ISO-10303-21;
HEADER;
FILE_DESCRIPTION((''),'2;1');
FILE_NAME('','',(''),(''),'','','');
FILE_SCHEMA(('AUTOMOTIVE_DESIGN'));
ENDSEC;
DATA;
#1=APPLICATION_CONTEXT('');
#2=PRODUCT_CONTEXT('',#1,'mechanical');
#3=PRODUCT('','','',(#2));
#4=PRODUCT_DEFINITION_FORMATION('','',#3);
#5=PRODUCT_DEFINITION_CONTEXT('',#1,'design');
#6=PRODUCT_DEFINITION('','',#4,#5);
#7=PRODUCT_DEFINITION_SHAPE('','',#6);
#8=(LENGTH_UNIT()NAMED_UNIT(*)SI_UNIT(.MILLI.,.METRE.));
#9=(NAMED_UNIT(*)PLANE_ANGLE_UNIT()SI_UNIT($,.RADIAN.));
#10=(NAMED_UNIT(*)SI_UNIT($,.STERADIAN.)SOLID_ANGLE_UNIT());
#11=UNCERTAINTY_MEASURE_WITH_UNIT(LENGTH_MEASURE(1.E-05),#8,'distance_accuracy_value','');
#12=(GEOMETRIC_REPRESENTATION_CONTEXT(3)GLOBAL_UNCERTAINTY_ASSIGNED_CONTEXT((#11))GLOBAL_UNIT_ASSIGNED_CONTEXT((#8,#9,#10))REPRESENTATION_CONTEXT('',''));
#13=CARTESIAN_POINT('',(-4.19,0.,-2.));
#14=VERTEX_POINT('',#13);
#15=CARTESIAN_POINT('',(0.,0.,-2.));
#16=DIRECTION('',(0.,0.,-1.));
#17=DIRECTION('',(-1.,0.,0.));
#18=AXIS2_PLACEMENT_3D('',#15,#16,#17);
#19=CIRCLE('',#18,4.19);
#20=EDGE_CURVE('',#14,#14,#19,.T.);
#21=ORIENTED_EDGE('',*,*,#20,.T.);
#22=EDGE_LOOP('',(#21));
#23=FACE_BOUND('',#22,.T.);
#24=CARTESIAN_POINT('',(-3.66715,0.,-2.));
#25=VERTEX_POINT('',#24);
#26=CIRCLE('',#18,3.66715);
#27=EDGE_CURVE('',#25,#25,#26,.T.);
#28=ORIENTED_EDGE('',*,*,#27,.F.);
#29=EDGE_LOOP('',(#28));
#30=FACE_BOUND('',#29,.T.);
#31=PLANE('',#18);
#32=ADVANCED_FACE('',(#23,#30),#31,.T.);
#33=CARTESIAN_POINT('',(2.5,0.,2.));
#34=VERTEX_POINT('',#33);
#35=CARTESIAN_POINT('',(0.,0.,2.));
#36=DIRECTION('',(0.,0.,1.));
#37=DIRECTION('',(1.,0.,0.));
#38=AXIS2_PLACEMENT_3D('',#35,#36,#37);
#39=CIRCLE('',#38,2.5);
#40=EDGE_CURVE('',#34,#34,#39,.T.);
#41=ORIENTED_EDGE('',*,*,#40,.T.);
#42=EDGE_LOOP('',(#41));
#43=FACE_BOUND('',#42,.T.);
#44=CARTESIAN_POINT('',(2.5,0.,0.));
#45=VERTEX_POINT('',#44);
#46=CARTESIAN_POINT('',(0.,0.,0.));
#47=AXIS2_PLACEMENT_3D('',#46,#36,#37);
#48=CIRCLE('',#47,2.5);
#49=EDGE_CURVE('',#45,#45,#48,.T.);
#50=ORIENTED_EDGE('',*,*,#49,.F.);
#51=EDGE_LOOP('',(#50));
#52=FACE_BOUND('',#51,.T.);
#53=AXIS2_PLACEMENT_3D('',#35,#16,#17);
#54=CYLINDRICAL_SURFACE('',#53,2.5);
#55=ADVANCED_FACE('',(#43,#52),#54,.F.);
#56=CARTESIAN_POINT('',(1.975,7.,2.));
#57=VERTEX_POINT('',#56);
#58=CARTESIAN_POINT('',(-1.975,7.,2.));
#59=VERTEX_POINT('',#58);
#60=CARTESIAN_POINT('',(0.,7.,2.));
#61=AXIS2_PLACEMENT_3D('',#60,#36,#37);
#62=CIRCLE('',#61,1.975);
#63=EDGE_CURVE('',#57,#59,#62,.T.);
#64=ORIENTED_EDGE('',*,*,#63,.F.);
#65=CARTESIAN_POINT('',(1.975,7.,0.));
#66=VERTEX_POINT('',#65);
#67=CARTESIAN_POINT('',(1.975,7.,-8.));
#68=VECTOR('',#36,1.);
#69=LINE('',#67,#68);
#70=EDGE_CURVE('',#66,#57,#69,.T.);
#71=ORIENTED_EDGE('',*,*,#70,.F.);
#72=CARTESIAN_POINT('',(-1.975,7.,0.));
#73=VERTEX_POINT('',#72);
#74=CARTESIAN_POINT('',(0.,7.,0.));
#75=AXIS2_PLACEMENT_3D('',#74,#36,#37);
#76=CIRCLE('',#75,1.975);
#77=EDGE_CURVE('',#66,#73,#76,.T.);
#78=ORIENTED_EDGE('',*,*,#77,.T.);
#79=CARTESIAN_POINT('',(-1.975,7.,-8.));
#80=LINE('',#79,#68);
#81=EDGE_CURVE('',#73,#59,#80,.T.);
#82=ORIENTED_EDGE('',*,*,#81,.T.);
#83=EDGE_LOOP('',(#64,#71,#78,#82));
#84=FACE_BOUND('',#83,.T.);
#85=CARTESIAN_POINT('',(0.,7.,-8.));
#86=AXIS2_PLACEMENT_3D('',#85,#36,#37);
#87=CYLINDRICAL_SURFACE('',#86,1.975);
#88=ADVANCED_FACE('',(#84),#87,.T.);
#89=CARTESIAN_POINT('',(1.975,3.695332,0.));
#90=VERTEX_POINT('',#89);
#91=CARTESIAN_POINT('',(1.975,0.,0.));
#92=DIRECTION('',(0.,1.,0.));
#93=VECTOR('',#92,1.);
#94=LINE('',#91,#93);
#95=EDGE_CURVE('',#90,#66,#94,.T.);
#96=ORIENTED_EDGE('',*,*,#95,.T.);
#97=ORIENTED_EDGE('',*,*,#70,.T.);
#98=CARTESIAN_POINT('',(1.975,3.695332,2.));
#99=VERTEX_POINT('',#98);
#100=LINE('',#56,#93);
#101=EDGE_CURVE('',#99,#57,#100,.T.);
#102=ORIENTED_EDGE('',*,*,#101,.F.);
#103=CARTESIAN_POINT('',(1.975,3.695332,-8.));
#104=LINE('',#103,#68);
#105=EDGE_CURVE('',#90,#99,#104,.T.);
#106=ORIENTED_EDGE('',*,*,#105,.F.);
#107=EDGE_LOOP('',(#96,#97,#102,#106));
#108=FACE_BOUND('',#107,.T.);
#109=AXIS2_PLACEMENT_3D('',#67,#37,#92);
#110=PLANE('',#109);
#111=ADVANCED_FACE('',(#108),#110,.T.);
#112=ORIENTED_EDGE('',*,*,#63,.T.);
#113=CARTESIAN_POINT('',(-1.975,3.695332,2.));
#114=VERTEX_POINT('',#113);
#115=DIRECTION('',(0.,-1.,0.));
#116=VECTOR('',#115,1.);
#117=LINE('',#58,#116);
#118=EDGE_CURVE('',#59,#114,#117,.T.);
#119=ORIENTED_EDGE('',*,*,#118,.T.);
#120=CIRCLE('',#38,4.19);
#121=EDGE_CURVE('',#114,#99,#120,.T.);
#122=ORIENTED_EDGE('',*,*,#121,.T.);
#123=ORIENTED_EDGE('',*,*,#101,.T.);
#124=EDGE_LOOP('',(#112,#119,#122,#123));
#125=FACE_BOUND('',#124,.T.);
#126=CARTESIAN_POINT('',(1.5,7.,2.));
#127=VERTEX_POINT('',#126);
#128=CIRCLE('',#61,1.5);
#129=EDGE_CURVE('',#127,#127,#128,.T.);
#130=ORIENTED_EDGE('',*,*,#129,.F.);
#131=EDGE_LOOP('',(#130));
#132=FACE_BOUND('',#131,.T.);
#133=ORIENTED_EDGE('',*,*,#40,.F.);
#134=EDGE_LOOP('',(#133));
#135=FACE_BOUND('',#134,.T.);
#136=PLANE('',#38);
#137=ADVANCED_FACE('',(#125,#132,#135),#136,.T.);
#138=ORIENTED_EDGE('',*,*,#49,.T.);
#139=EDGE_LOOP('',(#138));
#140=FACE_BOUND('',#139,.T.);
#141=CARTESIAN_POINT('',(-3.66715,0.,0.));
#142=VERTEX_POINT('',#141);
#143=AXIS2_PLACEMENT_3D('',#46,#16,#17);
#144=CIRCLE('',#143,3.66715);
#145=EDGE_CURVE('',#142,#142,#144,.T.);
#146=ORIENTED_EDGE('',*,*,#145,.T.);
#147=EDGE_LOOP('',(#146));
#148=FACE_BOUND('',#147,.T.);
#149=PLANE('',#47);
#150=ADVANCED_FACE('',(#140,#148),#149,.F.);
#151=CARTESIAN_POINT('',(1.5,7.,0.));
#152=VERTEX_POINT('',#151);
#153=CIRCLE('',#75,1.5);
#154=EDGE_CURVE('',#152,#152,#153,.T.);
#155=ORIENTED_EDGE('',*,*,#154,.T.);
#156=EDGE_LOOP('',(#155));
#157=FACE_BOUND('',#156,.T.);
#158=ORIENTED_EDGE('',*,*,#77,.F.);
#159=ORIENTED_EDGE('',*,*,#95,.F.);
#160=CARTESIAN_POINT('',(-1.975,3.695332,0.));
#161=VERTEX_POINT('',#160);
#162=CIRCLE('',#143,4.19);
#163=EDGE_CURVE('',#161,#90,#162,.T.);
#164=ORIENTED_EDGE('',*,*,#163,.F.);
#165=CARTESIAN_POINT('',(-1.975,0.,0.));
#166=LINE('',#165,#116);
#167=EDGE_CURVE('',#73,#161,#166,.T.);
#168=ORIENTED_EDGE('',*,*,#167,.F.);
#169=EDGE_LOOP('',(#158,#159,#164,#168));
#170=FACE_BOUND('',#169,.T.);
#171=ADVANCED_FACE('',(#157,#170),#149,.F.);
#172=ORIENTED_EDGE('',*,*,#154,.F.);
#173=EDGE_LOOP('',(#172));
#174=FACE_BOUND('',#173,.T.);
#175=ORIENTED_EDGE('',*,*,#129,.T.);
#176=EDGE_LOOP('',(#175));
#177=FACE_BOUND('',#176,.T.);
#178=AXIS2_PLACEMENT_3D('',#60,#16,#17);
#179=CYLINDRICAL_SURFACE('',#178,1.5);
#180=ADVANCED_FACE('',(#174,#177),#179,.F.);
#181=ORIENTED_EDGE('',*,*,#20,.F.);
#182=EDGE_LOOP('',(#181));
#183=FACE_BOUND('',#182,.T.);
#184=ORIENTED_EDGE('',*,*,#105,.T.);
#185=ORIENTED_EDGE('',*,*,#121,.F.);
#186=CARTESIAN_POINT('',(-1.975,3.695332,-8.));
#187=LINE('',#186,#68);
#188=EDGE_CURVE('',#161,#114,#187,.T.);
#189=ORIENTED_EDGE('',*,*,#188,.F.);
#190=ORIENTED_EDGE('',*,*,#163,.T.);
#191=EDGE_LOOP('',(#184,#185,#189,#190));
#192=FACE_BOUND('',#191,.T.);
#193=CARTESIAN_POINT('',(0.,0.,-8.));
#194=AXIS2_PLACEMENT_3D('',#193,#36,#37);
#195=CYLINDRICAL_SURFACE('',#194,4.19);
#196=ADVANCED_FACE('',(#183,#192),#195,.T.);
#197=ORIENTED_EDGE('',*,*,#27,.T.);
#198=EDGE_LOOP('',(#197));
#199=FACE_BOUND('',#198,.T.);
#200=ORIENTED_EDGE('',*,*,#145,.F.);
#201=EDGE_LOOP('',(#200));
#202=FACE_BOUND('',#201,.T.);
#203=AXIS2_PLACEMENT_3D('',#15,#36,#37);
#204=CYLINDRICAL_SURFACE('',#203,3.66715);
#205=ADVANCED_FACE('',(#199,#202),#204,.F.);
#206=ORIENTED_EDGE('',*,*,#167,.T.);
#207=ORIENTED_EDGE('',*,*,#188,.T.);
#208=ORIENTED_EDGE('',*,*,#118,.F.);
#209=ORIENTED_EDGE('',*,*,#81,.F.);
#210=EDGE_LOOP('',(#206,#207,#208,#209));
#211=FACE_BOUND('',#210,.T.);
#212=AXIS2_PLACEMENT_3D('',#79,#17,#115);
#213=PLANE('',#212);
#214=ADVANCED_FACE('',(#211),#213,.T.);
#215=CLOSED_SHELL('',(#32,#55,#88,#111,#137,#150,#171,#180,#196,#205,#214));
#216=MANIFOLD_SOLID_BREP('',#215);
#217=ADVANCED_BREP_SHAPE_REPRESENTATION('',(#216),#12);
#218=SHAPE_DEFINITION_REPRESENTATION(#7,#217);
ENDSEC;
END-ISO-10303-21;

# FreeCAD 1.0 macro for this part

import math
import FreeCAD as App
import Part
import Sketcher
from FreeCAD import Vector
Q = App.Units.Quantity

doc = App.newDocument("Part")
body = doc.addObject("PartDesign::Body", "Body")

sketch1 = body.newObject("Sketcher::SketchObject", "Sketch")
sketch1.AttachmentSupport = (doc.getObject("XY_Plane"), [""])
sketch1.MapMode = "FlatFace"
sketch1.addGeometry([
    Part.Circle(Vector(0, 0, 0), Vector(0, 0, 1), 10),
    Part.Circle(Vector(0, 0, 0), Vector(0, 0, 1), 2.5),
    Part.Circle(Vector(0, 7, 0), Vector(0, 0, 1), 1.5),
], False)
sketch1.addConstraint([
    Sketcher.Constraint("Coincident", 0, 3, -1, 1),
    Sketcher.Constraint("Coincident", 1, 3, -1, 1),
    Sketcher.Constraint("PointOnObject", 2, 3, -2),
    Sketcher.Constraint("Diameter", 0, Q("20 mm")),
    Sketcher.Constraint("Diameter", 1, Q("5 mm")),
    Sketcher.Constraint("Diameter", 2, Q("3 mm")),
    Sketcher.Constraint("DistanceY", -1, 1, 2, 3, Q("7 mm")),
])
pad1 = body.newObject("PartDesign::Pad", "Pad")
pad1.Profile = sketch1
pad1.Length = 2

sketch2 = body.newObject("Sketcher::SketchObject", "Sketch001")
sketch2.AttachmentSupport = (doc.getObject("XY_Plane"), [""])
sketch2.MapMode = "FlatFace"
sketch2.AttachmentOffset = App.Placement(Vector(0, 0, -8), App.Rotation())
sketch2.addGeometry([
    Part.Circle(Vector(0, 0, 0), Vector(0, 0, 1), 10),
    Part.LineSegment(Vector(-2, 3.7, 0), Vector(-2, 7, 0)),
    Part.ArcOfCircle(Part.Circle(Vector(0, 7, 0), Vector(0, 0, 1), 2), math.radians(0), math.radians(180)),
    Part.LineSegment(Vector(2, 7, 0), Vector(2, 3.7, 0)),
    Part.ArcOfCircle(Part.Circle(Vector(0, 0, 0), Vector(0, 0, 1), 4.2), math.radians(118), math.radians(422)),
], False)
sketch2.addConstraint([
    Sketcher.Constraint("Tangent", 1, 2, 2, 2),
    Sketcher.Constraint("Tangent", 2, 1, 3, 1),
    Sketcher.Constraint("Coincident", 3, 2, 4, 2),
    Sketcher.Constraint("Coincident", 4, 1, 1, 1),
    Sketcher.Constraint("Vertical", 1),
    Sketcher.Constraint("Vertical", 3),
    Sketcher.Constraint("Coincident", 0, 3, -1, 1),
    Sketcher.Constraint("Coincident", 4, 3, -1, 1),
    Sketcher.Constraint("PointOnObject", 2, 3, -2),
    Sketcher.Constraint("Diameter", 0, Q("20 mm")),
    Sketcher.Constraint("Radius", 4, Q("4.19 mm")),
    Sketcher.Constraint("DistanceY", -1, 1, 2, 3, Q("7 mm")),
    Sketcher.Constraint("Radius", 2, Q("1.975 mm")),
])
pocket1 = body.newObject("PartDesign::Pocket", "Pocket")
pocket1.Profile = sketch2
pocket1.Length = 10
pocket1.Reversed = True

sketch3 = body.newObject("Sketcher::SketchObject", "Sketch002")
sketch3.AttachmentSupport = (doc.getObject("XY_Plane"), [""])
sketch3.MapMode = "FlatFace"
sketch3.AttachmentOffset = App.Placement(Vector(0, 0, -2), App.Rotation())
sketch3.addGeometry([
    Part.Circle(Vector(0, 0, 0), Vector(0, 0, 1), 4.2),
    Part.Circle(Vector(0, 0, 0), Vector(0, 0, 1), 3.7),
], False)
sketch3.addConstraint([
    Sketcher.Constraint("Coincident", 0, 3, -1, 1),
    Sketcher.Constraint("Coincident", 1, 3, -1, 1),
    Sketcher.Constraint("Diameter", 0, Q("8.38 mm")),
    Sketcher.Constraint("Diameter", 1, Q("7.334299 mm")),
])
pad2 = body.newObject("PartDesign::Pad", "Pad001")
pad2.Profile = sketch3
pad2.Length = 2

doc.recompute()
